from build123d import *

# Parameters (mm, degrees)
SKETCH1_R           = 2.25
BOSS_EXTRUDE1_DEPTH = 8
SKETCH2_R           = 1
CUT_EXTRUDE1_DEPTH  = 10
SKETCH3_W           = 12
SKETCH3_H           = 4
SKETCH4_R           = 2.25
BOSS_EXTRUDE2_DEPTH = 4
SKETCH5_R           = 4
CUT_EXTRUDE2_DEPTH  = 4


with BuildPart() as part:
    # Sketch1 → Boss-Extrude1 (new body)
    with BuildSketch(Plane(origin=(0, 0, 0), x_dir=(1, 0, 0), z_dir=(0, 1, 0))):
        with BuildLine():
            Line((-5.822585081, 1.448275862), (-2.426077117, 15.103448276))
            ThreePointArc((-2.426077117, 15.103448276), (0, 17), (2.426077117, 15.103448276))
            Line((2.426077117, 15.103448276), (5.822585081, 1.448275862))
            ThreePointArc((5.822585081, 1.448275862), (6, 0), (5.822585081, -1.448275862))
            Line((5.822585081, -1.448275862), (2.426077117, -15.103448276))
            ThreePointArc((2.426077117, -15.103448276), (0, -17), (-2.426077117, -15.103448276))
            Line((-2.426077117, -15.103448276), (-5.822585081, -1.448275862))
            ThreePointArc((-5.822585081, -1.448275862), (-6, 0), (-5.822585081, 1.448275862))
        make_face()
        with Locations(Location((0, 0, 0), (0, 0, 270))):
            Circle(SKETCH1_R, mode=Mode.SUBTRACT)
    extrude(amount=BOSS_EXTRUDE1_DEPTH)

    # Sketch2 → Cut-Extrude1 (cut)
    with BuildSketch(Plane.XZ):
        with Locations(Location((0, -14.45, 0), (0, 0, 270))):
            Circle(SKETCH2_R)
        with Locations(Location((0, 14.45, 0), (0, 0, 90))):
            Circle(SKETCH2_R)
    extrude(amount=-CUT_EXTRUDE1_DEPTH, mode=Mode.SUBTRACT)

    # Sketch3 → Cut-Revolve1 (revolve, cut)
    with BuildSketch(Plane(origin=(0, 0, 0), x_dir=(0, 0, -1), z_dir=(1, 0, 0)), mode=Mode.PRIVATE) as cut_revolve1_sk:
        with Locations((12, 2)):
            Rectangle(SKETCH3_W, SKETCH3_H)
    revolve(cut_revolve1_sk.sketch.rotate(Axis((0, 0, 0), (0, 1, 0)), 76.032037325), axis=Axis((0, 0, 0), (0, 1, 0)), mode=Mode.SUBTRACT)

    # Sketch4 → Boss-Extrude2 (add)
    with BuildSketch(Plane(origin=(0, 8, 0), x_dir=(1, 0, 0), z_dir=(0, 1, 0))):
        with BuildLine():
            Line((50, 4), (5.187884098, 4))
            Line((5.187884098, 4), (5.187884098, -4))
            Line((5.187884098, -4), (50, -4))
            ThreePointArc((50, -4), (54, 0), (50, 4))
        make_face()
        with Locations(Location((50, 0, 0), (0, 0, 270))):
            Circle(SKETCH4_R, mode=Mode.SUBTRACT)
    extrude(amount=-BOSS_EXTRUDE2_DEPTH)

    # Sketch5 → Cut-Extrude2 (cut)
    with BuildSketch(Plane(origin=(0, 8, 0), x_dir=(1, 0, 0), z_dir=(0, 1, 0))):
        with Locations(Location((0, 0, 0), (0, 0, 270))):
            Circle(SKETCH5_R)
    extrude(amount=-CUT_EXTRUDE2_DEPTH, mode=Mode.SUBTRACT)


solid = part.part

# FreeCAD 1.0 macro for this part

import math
import FreeCAD as App
import Part
import Sketcher
Q = App.Units.Quantity


def add_polygon(sketch, points):
    """Adds a closed chain of lines whose ends are joined by coincident constraints."""
    first, n = sketch.GeometryCount, len(points)
    for a, b in zip(points, points[1:] + points[:1]):
        sketch.addGeometry(Part.LineSegment(App.Vector(*a, 0), App.Vector(*b, 0)), False)
    for i in range(n):
        sketch.addConstraint(Sketcher.Constraint("Coincident", first + i, 2, first + (i + 1) % n, 1))

doc = App.newDocument("Part")
params = doc.addObject("Spreadsheet::Sheet", "Params")
for row, (alias, value) in enumerate([
    ("sketch1_radius", "6 mm"),
    ("sketch1_diameter", "4.5 mm"),
    ("sketch1_radius2", "2.5 mm"),
    ("pad1_length", "8 mm"),
    ("sketch2_diameter", "2 mm"),
    ("pocket1_length", "10 mm"),
    ("sketch3_width", "4 mm"),
    ("sketch3_height", "12 mm"),
    ("groove_angle", "360 deg"),
    ("sketch4_radius", "4 mm"),
    ("sketch4_diameter", "4.5 mm"),
    ("pad2_length", "4 mm"),
    ("sketch5_diameter", "8 mm"),
    ("pocket2_length", "4 mm"),
], start=1):
    params.set(f"A{row}", alias)
    params.set(f"B{row}", "=" + value)
    params.setAlias(f"B{row}", alias)

body = doc.addObject("PartDesign::Body", "Body")

# Sketch on XZ plane
sketch1 = body.newObject("Sketcher::SketchObject", "Sketch")
sketch1.AttachmentSupport = (doc.getObject("XZ_Plane"), [""])
sketch1.MapMode = "FlatFace"
sketch1.addGeometry(Part.LineSegment(App.Vector(-2.426077, -15.103448, 0), App.Vector(-5.822585, -1.448276, 0)), False)
sketch1.addGeometry(Part.ArcOfCircle(Part.Circle(App.Vector(0, 0, 0), App.Vector(0, 0, 1), 6), math.radians(166.032037), math.radians(193.967963)), False)
sketch1.addGeometry(Part.LineSegment(App.Vector(-5.822585, 1.448276, 0), App.Vector(-2.426077, 15.103448, 0)), False)
sketch1.addGeometry(Part.ArcOfCircle(Part.Circle(App.Vector(0, 14.5, 0), App.Vector(0, 0, 1), 2.5), math.radians(13.967963), math.radians(166.032037)), False)
sketch1.addGeometry(Part.LineSegment(App.Vector(2.426077, 15.103448, 0), App.Vector(5.822585, 1.448276, 0)), False)
sketch1.addGeometry(Part.ArcOfCircle(Part.Circle(App.Vector(0, 0, 0), App.Vector(0, 0, 1), 6), math.radians(-13.967963), math.radians(13.967963)), False)
sketch1.addGeometry(Part.LineSegment(App.Vector(5.822585, -1.448276, 0), App.Vector(2.426077, -15.103448, 0)), False)
sketch1.addGeometry(Part.ArcOfCircle(Part.Circle(App.Vector(0, -14.5, 0), App.Vector(0, 0, 1), 2.5), math.radians(-166.032037), math.radians(-13.967963)), False)
sketch1.addGeometry(Part.Circle(App.Vector(0, 0, 0), App.Vector(0, 0, 1), 2.25), False)
sketch1.addConstraint(Sketcher.Constraint("Tangent", 0, 2, 1, 2))
sketch1.addConstraint(Sketcher.Constraint("Tangent", 1, 1, 2, 1))
sketch1.addConstraint(Sketcher.Constraint("Tangent", 2, 2, 3, 2))
sketch1.addConstraint(Sketcher.Constraint("Tangent", 3, 1, 4, 1))
sketch1.addConstraint(Sketcher.Constraint("Tangent", 4, 2, 5, 2))
sketch1.addConstraint(Sketcher.Constraint("Tangent", 5, 1, 6, 1))
sketch1.addConstraint(Sketcher.Constraint("Tangent", 6, 2, 7, 2))
sketch1.addConstraint(Sketcher.Constraint("Tangent", 7, 1, 0, 1))
sketch1.addConstraint(Sketcher.Constraint("Coincident", 1, 3, -1, 1))
sketch1.addConstraint(Sketcher.Constraint("Coincident", 5, 3, -1, 1))
sketch1.addConstraint(Sketcher.Constraint("Coincident", 8, 3, -1, 1))
sketch1.addConstraint(Sketcher.Constraint("Equal", 1, 5))
sketch1.addConstraint(Sketcher.Constraint("Equal", 3, 7))
sketch1.addConstraint(Sketcher.Constraint("Symmetric", 3, 3, 7, 3, -1, 1))
sketch1.addConstraint(Sketcher.Constraint("PointOnObject", 3, 3, -2))
sketch1.addConstraint(Sketcher.Constraint("Radius", 1, Q("6 mm")))
sketch1.addConstraint(Sketcher.Constraint("Diameter", 8, Q("4.5 mm")))
sketch1.addConstraint(Sketcher.Constraint("Radius", 3, Q("2.5 mm")))
sketch1.addConstraint(Sketcher.Constraint("DistanceY", 7, 3, 3, 3, Q("29 mm")))
sketch1.setExpression("Constraints[15]", "Params.sketch1_radius")
sketch1.setExpression("Constraints[16]", "Params.sketch1_diameter")
sketch1.setExpression("Constraints[17]", "Params.sketch1_radius2")
pad1 = body.newObject("PartDesign::Pad", "Pad")
pad1.Profile = sketch1
pad1.setExpression("Length", "Params.pad1_length")
pad1.Reversed = True

# Sketch on XZ plane
sketch2 = body.newObject("Sketcher::SketchObject", "Sketch001")
sketch2.AttachmentSupport = (doc.getObject("XZ_Plane"), [""])
sketch2.MapMode = "FlatFace"
sketch2.addGeometry(Part.Circle(App.Vector(0, -14.45, 0), App.Vector(0, 0, 1), 1), False)
sketch2.addGeometry(Part.Circle(App.Vector(0, 14.45, 0), App.Vector(0, 0, 1), 1), False)
sketch2.addConstraint(Sketcher.Constraint("Equal", 0, 1))
sketch2.addConstraint(Sketcher.Constraint("Symmetric", 0, 3, 1, 3, -1, 1))
sketch2.addConstraint(Sketcher.Constraint("PointOnObject", 0, 3, -2))
sketch2.addConstraint(Sketcher.Constraint("Diameter", 0, Q("2 mm")))
sketch2.addConstraint(Sketcher.Constraint("DistanceY", 0, 3, 1, 3, Q("28.9 mm")))
sketch2.setExpression("Constraints[3]", "Params.sketch2_diameter")
pocket1 = body.newObject("PartDesign::Pocket", "Pocket")
pocket1.Profile = sketch2
pocket1.setExpression("Length", "Params.pocket1_length")

# Sketch on YZ plane
sketch3 = body.newObject("Sketcher::SketchObject", "Sketch002")
sketch3.AttachmentSupport = (doc.getObject("YZ_Plane"), [""])
sketch3.MapMode = "FlatFace"
add_polygon(sketch3, [(4, -6), (0, -6), (0, -18), (4, -18)])  # lines 0-3
sketch3.addConstraint(Sketcher.Constraint("Horizontal", 0))
sketch3.addConstraint(Sketcher.Constraint("Vertical", 1))
sketch3.addConstraint(Sketcher.Constraint("Horizontal", 2))
sketch3.addConstraint(Sketcher.Constraint("Vertical", 3))
sketch3.addConstraint(Sketcher.Constraint("PointOnObject", 0, 2, -2))
sketch3.addConstraint(Sketcher.Constraint("DistanceX", 0, 2, 0, 1, Q("4 mm")))
sketch3.addConstraint(Sketcher.Constraint("DistanceY", 1, 2, 1, 1, Q("12 mm")))
sketch3.addConstraint(Sketcher.Constraint("DistanceY", 0, 2, -1, 1, Q("6 mm")))
sketch3.setExpression("Constraints[9]", "Params.sketch3_width")
sketch3.setExpression("Constraints[10]", "Params.sketch3_height")
groove = body.newObject("PartDesign::Groove", "Groove")
groove.Profile = sketch3
groove.ReferenceAxis = (sketch3, ["H_Axis"])
groove.setExpression("Angle", "Params.groove_angle")

# Sketch on XZ plane
sketch4 = body.newObject("Sketcher::SketchObject", "Sketch003")
sketch4.AttachmentSupport = (doc.getObject("XZ_Plane"), [""])
sketch4.MapMode = "FlatFace"
sketch4.AttachmentOffset = App.Placement(App.Vector(0, 0, -8), App.Rotation())
sketch4.addGeometry(Part.LineSegment(App.Vector(50, -4, 0), App.Vector(5.187884, -4, 0)), False)
sketch4.addGeometry(Part.LineSegment(App.Vector(5.187884, -4, 0), App.Vector(5.187884, 4, 0)), False)
sketch4.addGeometry(Part.LineSegment(App.Vector(5.187884, 4, 0), App.Vector(50, 4, 0)), False)
sketch4.addGeometry(Part.ArcOfCircle(Part.Circle(App.Vector(50, 0, 0), App.Vector(0, 0, 1), 4), math.radians(-90), math.radians(90)), False)
sketch4.addGeometry(Part.Circle(App.Vector(50, 0, 0), App.Vector(0, 0, 1), 2.25), False)
sketch4.addConstraint(Sketcher.Constraint("Coincident", 0, 2, 1, 1))
sketch4.addConstraint(Sketcher.Constraint("Coincident", 1, 2, 2, 1))
sketch4.addConstraint(Sketcher.Constraint("Tangent", 2, 2, 3, 2))
sketch4.addConstraint(Sketcher.Constraint("Tangent", 3, 1, 0, 1))
sketch4.addConstraint(Sketcher.Constraint("Horizontal", 0))
sketch4.addConstraint(Sketcher.Constraint("Vertical", 1))
sketch4.addConstraint(Sketcher.Constraint("Horizontal", 2))
sketch4.addConstraint(Sketcher.Constraint("Coincident", 4, 3, 3, 3))
sketch4.addConstraint(Sketcher.Constraint("PointOnObject", 3, 3, -1))
sketch4.addConstraint(Sketcher.Constraint("Radius", 3, Q("4 mm")))
sketch4.addConstraint(Sketcher.Constraint("Diameter", 4, Q("4.5 mm")))
sketch4.addConstraint(Sketcher.Constraint("DistanceX", -1, 1, 3, 3, Q("50 mm")))
sketch4.addConstraint(Sketcher.Constraint("DistanceX", 0, 2, 0, 1, Q("44.812116 mm")))
sketch4.setExpression("Constraints[9]", "Params.sketch4_radius")
sketch4.setExpression("Constraints[10]", "Params.sketch4_diameter")
pad2 = body.newObject("PartDesign::Pad", "Pad001")
pad2.Profile = sketch4
pad2.setExpression("Length", "Params.pad2_length")

# Sketch on XZ plane
sketch5 = body.newObject("Sketcher::SketchObject", "Sketch004")
sketch5.AttachmentSupport = (doc.getObject("XZ_Plane"), [""])
sketch5.MapMode = "FlatFace"
sketch5.AttachmentOffset = App.Placement(App.Vector(0, 0, -8), App.Rotation())
sketch5.addGeometry(Part.Circle(App.Vector(0, 0, 0), App.Vector(0, 0, 1), 4), False)
sketch5.addConstraint(Sketcher.Constraint("Coincident", 0, 3, -1, 1))
sketch5.addConstraint(Sketcher.Constraint("Diameter", 0, Q("8 mm")))
sketch5.setExpression("Constraints[1]", "Params.sketch5_diameter")
pocket2 = body.newObject("PartDesign::Pocket", "Pocket001")
pocket2.Profile = sketch5
pocket2.setExpression("Length", "Params.pocket2_length")
pocket2.Reversed = True

doc.recompute()
